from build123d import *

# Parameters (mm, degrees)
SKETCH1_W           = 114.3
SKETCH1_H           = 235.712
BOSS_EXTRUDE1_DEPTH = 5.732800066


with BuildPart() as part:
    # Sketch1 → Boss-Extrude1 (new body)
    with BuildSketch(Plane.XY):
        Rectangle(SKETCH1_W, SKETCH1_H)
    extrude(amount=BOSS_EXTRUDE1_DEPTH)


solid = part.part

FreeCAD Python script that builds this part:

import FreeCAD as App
import Part
import Sketcher
Q = App.Units.Quantity

doc = App.newDocument("Part")
body = doc.addObject("PartDesign::Body", "Body")

# Sketch on XY plane
sketch1 = body.newObject("Sketcher::SketchObject", "Sketch")
sketch1.AttachmentSupport = (doc.getObject("XY_Plane"), [""])
sketch1.MapMode = "FlatFace"
sketch1.addGeometry(Part.LineSegment(App.Vector(-57, 118, 0), App.Vector(-57, -118, 0)), False)
sketch1.addGeometry(Part.LineSegment(App.Vector(-57, -118, 0), App.Vector(57, -118, 0)), False)
sketch1.addGeometry(Part.LineSegment(App.Vector(57, -118, 0), App.Vector(57, 118, 0)), False)
sketch1.addGeometry(Part.LineSegment(App.Vector(57, 118, 0), App.Vector(-57, 118, 0)), False)
sketch1.addConstraint(Sketcher.Constraint("Coincident", 0, 2, 1, 1))
sketch1.addConstraint(Sketcher.Constraint("Coincident", 1, 2, 2, 1))
sketch1.addConstraint(Sketcher.Constraint("Coincident", 2, 2, 3, 1))
sketch1.addConstraint(Sketcher.Constraint("Coincident", 3, 2, 0, 1))
sketch1.addConstraint(Sketcher.Constraint("Vertical", 0))
sketch1.addConstraint(Sketcher.Constraint("Horizontal", 1))
sketch1.addConstraint(Sketcher.Constraint("Vertical", 2))
sketch1.addConstraint(Sketcher.Constraint("Horizontal", 3))
sketch1.addConstraint(Sketcher.Constraint("Symmetric", 0, 2, 2, 2, -1, 1))
sketch1.addConstraint(Sketcher.Constraint("DistanceX", 1, 1, 1, 2, Q("4.5 in")))
sketch1.addConstraint(Sketcher.Constraint("DistanceY", 0, 2, 0, 1, Q("9.28 in")))
pad1 = body.newObject("PartDesign::Pad", "Pad")
pad1.Profile = sketch1
pad1.Length = 5.7328

doc.recompute()
